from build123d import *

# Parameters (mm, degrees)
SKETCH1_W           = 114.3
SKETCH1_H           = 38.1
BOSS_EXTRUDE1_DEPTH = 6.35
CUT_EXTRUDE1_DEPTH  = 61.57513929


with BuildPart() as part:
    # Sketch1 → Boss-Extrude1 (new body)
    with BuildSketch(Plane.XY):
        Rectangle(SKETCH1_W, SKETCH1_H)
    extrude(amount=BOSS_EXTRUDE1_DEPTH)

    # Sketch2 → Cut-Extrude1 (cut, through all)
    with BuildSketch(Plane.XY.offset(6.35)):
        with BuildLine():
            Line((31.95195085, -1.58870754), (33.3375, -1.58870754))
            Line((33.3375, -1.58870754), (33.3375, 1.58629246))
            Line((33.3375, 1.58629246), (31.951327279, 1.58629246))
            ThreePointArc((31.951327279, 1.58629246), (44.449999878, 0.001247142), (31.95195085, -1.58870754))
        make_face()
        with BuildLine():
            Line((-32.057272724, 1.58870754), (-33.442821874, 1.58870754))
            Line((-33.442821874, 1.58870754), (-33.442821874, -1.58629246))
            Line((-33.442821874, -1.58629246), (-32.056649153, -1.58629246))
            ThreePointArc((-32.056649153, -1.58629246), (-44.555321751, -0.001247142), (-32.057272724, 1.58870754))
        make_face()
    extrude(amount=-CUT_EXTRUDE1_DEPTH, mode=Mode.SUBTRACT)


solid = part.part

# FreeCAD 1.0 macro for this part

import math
import FreeCAD as App
import Part
import Sketcher

V = App.Vector
Q = App.Units.Quantity

doc = App.newDocument("Part")
params = doc.addObject("Spreadsheet::Sheet", "Params")
for row, (alias, value) in enumerate([
    ("sketch1_width", "4.5 in"),
    ("sketch1_height", "1.5 in"),
    ("pad1_length", "0.25 in"),
    ("sketch2_radius", "0.25 in"),
    ("sketch2_height", "0.125 in"),
], start=1):
    params.set(f"A{row}", alias)
    params.set(f"B{row}", "=" + value)
    params.setAlias(f"B{row}", alias)

body = doc.addObject("PartDesign::Body", "Body")

sketch1 = doc.addObject("Sketcher::SketchObject", "Sketch")
body.addObject(sketch1)
sketch1.AttachmentSupport = (doc.XY_Plane, [""])
sketch1.MapMode = "FlatFace"
sketch1.addGeometry([
    Part.LineSegment(V(-57, 19, 0), V(-57, -19, 0)),
    Part.LineSegment(V(-57, -19, 0), V(57, -19, 0)),
    Part.LineSegment(V(57, -19, 0), V(57, 19, 0)),
    Part.LineSegment(V(57, 19, 0), V(-57, 19, 0)),
], False)
sketch1.addConstraint([
    Sketcher.Constraint("Coincident", 0, 2, 1, 1),
    Sketcher.Constraint("Coincident", 1, 2, 2, 1),
    Sketcher.Constraint("Coincident", 2, 2, 3, 1),
    Sketcher.Constraint("Coincident", 3, 2, 0, 1),
    Sketcher.Constraint("Vertical", 0),
    Sketcher.Constraint("Horizontal", 1),
    Sketcher.Constraint("Vertical", 2),
    Sketcher.Constraint("Horizontal", 3),
    Sketcher.Constraint("Symmetric", 0, 2, 2, 2, -1, 1),
    Sketcher.Constraint("DistanceX", 1, 1, 1, 2, Q("4.5 in")),
    Sketcher.Constraint("DistanceY", 0, 2, 0, 1, Q("1.5 in")),
])
sketch1.setExpression("Constraints[9]", "Params.sketch1_width")
sketch1.setExpression("Constraints[10]", "Params.sketch1_height")
pad1 = doc.addObject("PartDesign::Pad", "Pad")
body.addObject(pad1)
pad1.Profile = sketch1
pad1.setExpression("Length", "Params.pad1_length")

sketch2 = doc.addObject("Sketcher::SketchObject", "Sketch001")
body.addObject(sketch2)
sketch2.AttachmentSupport = (doc.XY_Plane, [""])
sketch2.MapMode = "FlatFace"
sketch2.AttachmentOffset = App.Placement(V(0, 0, 0.25 * 25.4), App.Rotation())
sketch2.addGeometry([
    Part.LineSegment(V(33.3, -1.6, 0), V(32, -1.6, 0)),
    Part.ArcOfCircle(Part.Circle(V(38.1, 0, 0), V(0, 0, 1), 6.3), math.radians(-166), math.radians(166)),
    Part.LineSegment(V(32, 1.6, 0), V(33.3, 1.6, 0)),
    Part.LineSegment(V(33.3, 1.6, 0), V(33.3, -1.6, 0)),
    Part.LineSegment(V(-33.4, 1.6, 0), V(-32.1, 1.6, 0)),
    Part.ArcOfCircle(Part.Circle(V(-38.2, 0, 0), V(0, 0, 1), 6.3), math.radians(14), math.radians(346)),
    Part.LineSegment(V(-32.1, -1.6, 0), V(-33.4, -1.6, 0)),
    Part.LineSegment(V(-33.4, -1.6, 0), V(-33.4, 1.6, 0)),
], False)
sketch2.addConstraint([
    Sketcher.Constraint("Coincident", 0, 2, 1, 1),
    Sketcher.Constraint("Coincident", 1, 2, 2, 1),
    Sketcher.Constraint("Coincident", 2, 2, 3, 1),
    Sketcher.Constraint("Coincident", 3, 2, 0, 1),
    Sketcher.Constraint("Coincident", 4, 2, 5, 1),
    Sketcher.Constraint("Coincident", 5, 2, 6, 1),
    Sketcher.Constraint("Coincident", 6, 2, 7, 1),
    Sketcher.Constraint("Coincident", 7, 2, 4, 1),
    Sketcher.Constraint("Horizontal", 0),
    Sketcher.Constraint("Horizontal", 2),
    Sketcher.Constraint("Vertical", 3),
    Sketcher.Constraint("Horizontal", 4),
    Sketcher.Constraint("Horizontal", 6),
    Sketcher.Constraint("Vertical", 7),
    Sketcher.Constraint("Equal", 1, 5),
    Sketcher.Constraint("PointOnObject", 1, 3, -1),
    Sketcher.Constraint("PointOnObject", 5, 3, -1),
    Sketcher.Constraint("Equal", 0, 4),
    Sketcher.Constraint("Equal", 2, 6),
    Sketcher.Constraint("Equal", 3, 7),
    Sketcher.Constraint("Radius", 1, Q("0.25 in")),
    Sketcher.Constraint("DistanceX", -1, 1, 1, 3, Q("1.5 in")),
    Sketcher.Constraint("DistanceY", 3, 2, 3, 1, Q("0.125 in")),
    Sketcher.Constraint("DistanceX", -1, 1, 2, 2, Q("1.3125 in")),
    Sketcher.Constraint("DistanceX", 0, 2, 0, 1, Q("1.385549 mm")),
    Sketcher.Constraint("DistanceX", 4, 2, 1, 2, Q("64.0086 mm")),
])
sketch2.setExpression("Constraints[20]", "Params.sketch2_radius")
sketch2.setExpression("Constraints[22]", "Params.sketch2_height")
pocket1 = doc.addObject("PartDesign::Pocket", "Pocket")
body.addObject(pocket1)
pocket1.Profile = sketch2
pocket1.Type = "ThroughAll"

doc.recompute()
